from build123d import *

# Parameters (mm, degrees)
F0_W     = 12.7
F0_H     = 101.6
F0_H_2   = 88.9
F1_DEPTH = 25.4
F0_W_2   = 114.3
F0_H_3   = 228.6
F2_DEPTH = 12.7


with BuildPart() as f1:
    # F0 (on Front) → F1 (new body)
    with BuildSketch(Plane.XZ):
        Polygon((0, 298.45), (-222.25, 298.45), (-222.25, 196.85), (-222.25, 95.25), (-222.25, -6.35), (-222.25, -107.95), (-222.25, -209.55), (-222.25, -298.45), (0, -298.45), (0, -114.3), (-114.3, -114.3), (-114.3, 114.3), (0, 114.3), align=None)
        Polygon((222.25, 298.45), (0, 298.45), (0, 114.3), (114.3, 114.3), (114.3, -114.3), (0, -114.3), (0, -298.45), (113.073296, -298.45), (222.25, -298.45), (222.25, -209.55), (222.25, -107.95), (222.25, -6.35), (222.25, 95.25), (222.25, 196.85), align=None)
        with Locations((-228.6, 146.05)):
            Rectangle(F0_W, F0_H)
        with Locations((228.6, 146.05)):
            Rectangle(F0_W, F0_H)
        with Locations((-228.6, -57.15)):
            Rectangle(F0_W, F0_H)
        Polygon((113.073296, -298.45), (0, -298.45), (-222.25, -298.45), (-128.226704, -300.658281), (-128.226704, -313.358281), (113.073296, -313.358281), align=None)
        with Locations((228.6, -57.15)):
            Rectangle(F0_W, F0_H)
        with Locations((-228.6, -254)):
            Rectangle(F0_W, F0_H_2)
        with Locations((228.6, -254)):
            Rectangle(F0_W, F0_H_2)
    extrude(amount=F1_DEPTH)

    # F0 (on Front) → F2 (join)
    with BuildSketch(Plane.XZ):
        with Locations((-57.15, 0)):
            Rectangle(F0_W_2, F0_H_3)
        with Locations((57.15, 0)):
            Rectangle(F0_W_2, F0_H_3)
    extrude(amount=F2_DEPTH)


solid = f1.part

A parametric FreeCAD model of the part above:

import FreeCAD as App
import Part
import Sketcher
from FreeCAD import Vector
Q = App.Units.Quantity


def add_polygon(sketch, points):
    """Adds a closed chain of lines whose ends are joined by coincident constraints."""
    first, n = sketch.GeometryCount, len(points)
    for a, b in zip(points, points[1:] + points[:1]):
        sketch.addGeometry(Part.LineSegment(App.Vector(*a, 0), App.Vector(*b, 0)), False)
    for i in range(n):
        sketch.addConstraint(Sketcher.Constraint("Coincident", first + i, 2, first + (i + 1) % n, 1))

doc = App.newDocument("Part")
body = doc.addObject("PartDesign::Body", "Body")

sketch1 = body.newObject("Sketcher::SketchObject", "Sketch")
sketch1.AttachmentSupport = (doc.getObject("XZ_Plane"), [""])
sketch1.MapMode = "FlatFace"
add_polygon(sketch1, [(-222.25, 298.45), (-222.25, 196.85), (-234.95, 196.85), (-234.95, 95.25), (-222.25, 95.25), (-222.25, -6.35), (-234.95, -6.35), (-234.95, -107.95), (-222.25, -107.95), (-222.25, -209.55), (-234.95, -209.55), (-234.95, -298.45), (-222.25, -298.45), (-128.226704, -300.658281), (-128.226704, -313.358281), (113.073296, -313.358281), (113.073296, -298.45), (234.95, -298.45), (234.95, -209.55), (222.25, -209.55), (222.25, -107.95), (234.95, -107.95), (234.95, -6.35), (222.25, -6.35), (222.25, 95.25), (234.95, 95.25), (234.95, 196.85), (222.25, 196.85), (222.25, 298.45)])
add_polygon(sketch1, [(-114.3, -114.3), (-114.3, 114.3), (114.3, 114.3), (114.3, -114.3)])
sketch1.addConstraint([
    Sketcher.Constraint("Vertical", 0),
    Sketcher.Constraint("Horizontal", 1),
    Sketcher.Constraint("Vertical", 2),
    Sketcher.Constraint("Horizontal", 3),
    Sketcher.Constraint("Vertical", 4),
    Sketcher.Constraint("Horizontal", 5),
    Sketcher.Constraint("Vertical", 6),
    Sketcher.Constraint("Horizontal", 7),
    Sketcher.Constraint("Vertical", 8),
    Sketcher.Constraint("Horizontal", 9),
    Sketcher.Constraint("Vertical", 10),
    Sketcher.Constraint("Horizontal", 11),
    Sketcher.Constraint("Vertical", 13),
    Sketcher.Constraint("Horizontal", 14),
    Sketcher.Constraint("Vertical", 15),
    Sketcher.Constraint("Horizontal", 16),
    Sketcher.Constraint("Vertical", 17),
    Sketcher.Constraint("Horizontal", 18),
    Sketcher.Constraint("Vertical", 19),
    Sketcher.Constraint("Horizontal", 20),
    Sketcher.Constraint("Vertical", 21),
    Sketcher.Constraint("Horizontal", 22),
    Sketcher.Constraint("Vertical", 23),
    Sketcher.Constraint("Horizontal", 24),
    Sketcher.Constraint("Vertical", 25),
    Sketcher.Constraint("Horizontal", 26),
    Sketcher.Constraint("Vertical", 27),
    Sketcher.Constraint("Horizontal", 28),
    Sketcher.Constraint("Vertical", 29),
    Sketcher.Constraint("Horizontal", 30),
    Sketcher.Constraint("Vertical", 31),
    Sketcher.Constraint("Horizontal", 32),
    Sketcher.Constraint("Symmetric", 11, 2, 27, 2, -1, 1),
    Sketcher.Constraint("Symmetric", 29, 2, 31, 2, -1, 1),
    Sketcher.Constraint("Symmetric", 10, 2, 16, 2, -2),
    Sketcher.Constraint("Symmetric", 8, 2, 18, 2, -2),
    Sketcher.Constraint("Symmetric", 6, 2, 20, 2, -2),
    Sketcher.Constraint("Symmetric", 4, 2, 22, 2, -2),
    Sketcher.Constraint("Symmetric", 2, 2, 24, 2, -2),
    Sketcher.Constraint("Symmetric", 0, 2, 26, 2, -2),
    Sketcher.Constraint("Vertical", 0, 2, 3, 2),
    Sketcher.Constraint("Vertical", 2, 2, 5, 2),
    Sketcher.Constraint("Vertical", 4, 2, 7, 2),
    Sketcher.Constraint("Vertical", 6, 2, 9, 2),
    Sketcher.Constraint("Equal", 0, 2),
    Sketcher.Constraint("Equal", 2, 4),
    Sketcher.Constraint("Equal", 4, 6),
    Sketcher.Constraint("Equal", 6, 8),
    Sketcher.Constraint("Equal", 26, 13),
    Sketcher.Constraint("Equal", 32, 29),
    Sketcher.Constraint("DistanceX", 30, 1, 30, 2, Q("9 in")),
    Sketcher.Constraint("DistanceY", 0, 2, 0, 1, Q("4 in")),
    Sketcher.Constraint("DistanceX", 1, 2, 1, 1, Q("0.5 in")),
    Sketcher.Constraint("DistanceX", 14, 1, 14, 2, Q("9.5 in")),
    Sketcher.Constraint("DistanceX", 28, 2, 28, 1, Q("17.5 in")),
    Sketcher.Constraint("DistanceY", 10, 2, 10, 1, Q("3.5 in")),
    Sketcher.Constraint("DistanceY", 15, 1, 15, 2, Q("14.908281 mm")),
    Sketcher.Constraint("DistanceX", 16, 1, 16, 2, Q("121.876704 mm")),
])
pad1 = body.newObject("PartDesign::Pad", "Pad")
pad1.Profile = sketch1
pad1.Length = Q("1 in")

sketch2 = body.newObject("Sketcher::SketchObject", "Sketch001")
sketch2.AttachmentSupport = (doc.getObject("XZ_Plane"), [""])
sketch2.MapMode = "FlatFace"
add_polygon(sketch2, [(-114.3, 114.3), (-114.3, -114.3), (114.3, -114.3), (114.3, 114.3)])
sketch2.addConstraint([
    Sketcher.Constraint("Vertical", 0),
    Sketcher.Constraint("Horizontal", 1),
    Sketcher.Constraint("Vertical", 2),
    Sketcher.Constraint("Horizontal", 3),
    Sketcher.Constraint("Symmetric", 0, 2, 2, 2, -1, 1),
    Sketcher.Constraint("Equal", 3, 0),
    Sketcher.Constraint("DistanceX", 1, 1, 1, 2, Q("9 in")),
])
pad2 = body.newObject("PartDesign::Pad", "Pad001")
pad2.Profile = sketch2
pad2.Length = Q("0.5 in")

doc.recompute()
